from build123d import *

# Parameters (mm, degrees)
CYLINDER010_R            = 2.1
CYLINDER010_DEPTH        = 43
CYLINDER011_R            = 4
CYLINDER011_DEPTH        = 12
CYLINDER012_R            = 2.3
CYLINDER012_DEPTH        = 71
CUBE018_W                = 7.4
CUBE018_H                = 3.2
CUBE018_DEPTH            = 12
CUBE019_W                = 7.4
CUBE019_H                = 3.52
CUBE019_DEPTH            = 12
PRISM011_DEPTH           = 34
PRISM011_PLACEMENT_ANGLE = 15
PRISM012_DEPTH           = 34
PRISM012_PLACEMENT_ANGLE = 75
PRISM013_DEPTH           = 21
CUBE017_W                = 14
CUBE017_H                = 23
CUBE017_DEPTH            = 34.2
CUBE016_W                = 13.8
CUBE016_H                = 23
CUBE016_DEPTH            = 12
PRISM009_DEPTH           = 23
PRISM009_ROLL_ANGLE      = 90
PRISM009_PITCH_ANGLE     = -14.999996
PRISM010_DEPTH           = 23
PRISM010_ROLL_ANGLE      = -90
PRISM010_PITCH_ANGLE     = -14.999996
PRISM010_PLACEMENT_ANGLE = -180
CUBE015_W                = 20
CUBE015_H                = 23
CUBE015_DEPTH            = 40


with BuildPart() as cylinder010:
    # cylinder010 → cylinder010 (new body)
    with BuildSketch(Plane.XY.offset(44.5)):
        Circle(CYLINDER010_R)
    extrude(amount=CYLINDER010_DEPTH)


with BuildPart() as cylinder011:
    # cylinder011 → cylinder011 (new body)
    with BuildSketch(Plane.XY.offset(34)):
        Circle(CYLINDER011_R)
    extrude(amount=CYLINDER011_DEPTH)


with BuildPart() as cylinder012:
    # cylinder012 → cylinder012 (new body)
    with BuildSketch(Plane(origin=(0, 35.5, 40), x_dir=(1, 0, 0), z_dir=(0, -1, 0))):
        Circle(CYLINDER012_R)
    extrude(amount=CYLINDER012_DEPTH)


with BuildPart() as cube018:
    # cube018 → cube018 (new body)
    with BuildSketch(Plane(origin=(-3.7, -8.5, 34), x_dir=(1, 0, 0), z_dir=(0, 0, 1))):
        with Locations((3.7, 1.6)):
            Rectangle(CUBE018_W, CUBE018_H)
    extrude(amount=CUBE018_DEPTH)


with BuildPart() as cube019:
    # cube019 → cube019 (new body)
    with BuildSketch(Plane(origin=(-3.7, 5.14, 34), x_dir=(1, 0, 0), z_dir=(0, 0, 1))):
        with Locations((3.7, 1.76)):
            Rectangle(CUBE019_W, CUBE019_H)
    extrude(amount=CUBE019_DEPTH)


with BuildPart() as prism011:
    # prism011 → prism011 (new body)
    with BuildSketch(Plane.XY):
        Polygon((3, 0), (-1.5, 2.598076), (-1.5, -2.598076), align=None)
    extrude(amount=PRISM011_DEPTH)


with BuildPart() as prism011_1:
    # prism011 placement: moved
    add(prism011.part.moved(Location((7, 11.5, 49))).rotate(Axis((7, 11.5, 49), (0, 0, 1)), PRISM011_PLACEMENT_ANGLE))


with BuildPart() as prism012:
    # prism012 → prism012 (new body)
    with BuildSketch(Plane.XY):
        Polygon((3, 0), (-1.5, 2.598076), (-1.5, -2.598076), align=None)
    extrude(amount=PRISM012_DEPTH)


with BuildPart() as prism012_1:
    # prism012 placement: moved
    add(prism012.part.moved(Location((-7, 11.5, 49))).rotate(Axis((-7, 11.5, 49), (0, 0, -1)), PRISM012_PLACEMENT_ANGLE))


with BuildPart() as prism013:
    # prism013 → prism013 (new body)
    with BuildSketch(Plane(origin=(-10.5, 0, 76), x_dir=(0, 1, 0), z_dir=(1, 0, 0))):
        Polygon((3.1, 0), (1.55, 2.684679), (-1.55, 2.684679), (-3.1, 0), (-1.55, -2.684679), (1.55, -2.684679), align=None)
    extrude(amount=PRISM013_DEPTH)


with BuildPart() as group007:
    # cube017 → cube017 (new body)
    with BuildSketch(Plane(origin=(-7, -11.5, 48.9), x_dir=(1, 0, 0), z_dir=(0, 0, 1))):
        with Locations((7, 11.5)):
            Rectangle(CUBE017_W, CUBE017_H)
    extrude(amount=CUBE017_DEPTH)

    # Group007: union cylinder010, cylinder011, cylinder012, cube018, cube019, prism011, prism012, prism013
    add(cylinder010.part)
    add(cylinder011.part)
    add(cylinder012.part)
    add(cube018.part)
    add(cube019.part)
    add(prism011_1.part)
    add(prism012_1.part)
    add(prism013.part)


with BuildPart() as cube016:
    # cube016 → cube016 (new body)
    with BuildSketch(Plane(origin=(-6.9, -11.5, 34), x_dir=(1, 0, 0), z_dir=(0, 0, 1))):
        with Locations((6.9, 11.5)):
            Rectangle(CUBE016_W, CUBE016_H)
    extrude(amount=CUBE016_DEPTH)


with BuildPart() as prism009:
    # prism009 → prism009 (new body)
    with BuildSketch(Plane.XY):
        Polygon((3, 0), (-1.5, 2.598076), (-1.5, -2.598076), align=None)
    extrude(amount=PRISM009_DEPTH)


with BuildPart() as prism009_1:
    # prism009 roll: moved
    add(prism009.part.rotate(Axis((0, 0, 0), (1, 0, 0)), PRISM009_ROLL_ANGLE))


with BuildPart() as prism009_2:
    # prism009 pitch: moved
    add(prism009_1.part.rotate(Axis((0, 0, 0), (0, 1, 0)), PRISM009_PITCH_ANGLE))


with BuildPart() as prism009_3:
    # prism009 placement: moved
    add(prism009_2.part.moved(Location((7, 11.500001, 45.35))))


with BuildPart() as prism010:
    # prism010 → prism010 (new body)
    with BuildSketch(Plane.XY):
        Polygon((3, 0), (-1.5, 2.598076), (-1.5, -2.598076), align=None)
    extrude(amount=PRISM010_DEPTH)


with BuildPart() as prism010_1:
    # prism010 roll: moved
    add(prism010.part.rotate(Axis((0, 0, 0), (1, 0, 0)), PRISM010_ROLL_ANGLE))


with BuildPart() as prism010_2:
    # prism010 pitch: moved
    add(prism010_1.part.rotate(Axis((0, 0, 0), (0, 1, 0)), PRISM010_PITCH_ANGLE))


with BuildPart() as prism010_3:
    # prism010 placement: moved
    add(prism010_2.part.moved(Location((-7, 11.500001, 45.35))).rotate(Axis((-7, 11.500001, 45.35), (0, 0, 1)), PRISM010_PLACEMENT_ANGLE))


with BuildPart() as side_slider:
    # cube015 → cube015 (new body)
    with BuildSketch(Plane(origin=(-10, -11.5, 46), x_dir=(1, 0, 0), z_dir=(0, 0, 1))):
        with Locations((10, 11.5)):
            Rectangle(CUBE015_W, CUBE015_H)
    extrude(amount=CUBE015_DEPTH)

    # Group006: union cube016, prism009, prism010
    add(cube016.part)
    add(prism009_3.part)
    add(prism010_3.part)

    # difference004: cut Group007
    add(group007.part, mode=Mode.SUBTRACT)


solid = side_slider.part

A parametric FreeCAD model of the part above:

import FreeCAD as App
import Part
import Sketcher
from FreeCAD import Vector
Q = App.Units.Quantity


def add_polygon(sketch, points):
    """Adds a closed chain of lines whose ends are joined by coincident constraints."""
    first, n = sketch.GeometryCount, len(points)
    for a, b in zip(points, points[1:] + points[:1]):
        sketch.addGeometry(Part.LineSegment(App.Vector(*a, 0), App.Vector(*b, 0)), False)
    for i in range(n):
        sketch.addConstraint(Sketcher.Constraint("Coincident", first + i, 2, first + (i + 1) % n, 1))

doc = App.newDocument("Part")
params = doc.addObject("Spreadsheet::Sheet", "Params")
for row, (alias, value) in enumerate([
    ("sketch1_diameter", "4.2 mm"),
    ("pad1_length", "43 mm"),
    ("sketch2_diameter", "8 mm"),
    ("pad2_length", "12 mm"),
    ("sketch3_diameter", "4.6 mm"),
    ("pad3_length", "71 mm"),
    ("sketch4_width", "7.4 mm"),
    ("sketch4_height", "3.2 mm"),
    ("pad4_length", "12 mm"),
    ("sketch5_width", "7.4 mm"),
    ("sketch5_height", "3.52 mm"),
    ("pad5_length", "12 mm"),
    ("pad6_length", "34 mm"),
    ("pad7_length", "34 mm"),
    ("sketch8_width", "3.1 mm"),
    ("sketch8_length", "3.1 mm"),
    ("pad8_length", "21 mm"),
    ("sketch9_width", "14 mm"),
    ("sketch9_height", "23 mm"),
    ("pad9_length", "34.2 mm"),
    ("sketch10_height", "23 mm"),
    ("sketch10_width", "13.8 mm"),
    ("pad10_length", "12 mm"),
    ("pad11_length", "23 mm"),
    ("pad12_length", "23 mm"),
    ("sketch13_width", "20 mm"),
    ("sketch13_height", "23 mm"),
    ("pad13_length", "40 mm"),
], start=1):
    params.set(f"A{row}", alias)
    params.set(f"B{row}", "=" + value)
    params.setAlias(f"B{row}", alias)

body = doc.addObject("PartDesign::Body", "Body")

# Sketch on XY plane
sketch1 = doc.addObject("Sketcher::SketchObject", "Sketch")
body.addObject(sketch1)
sketch1.AttachmentSupport = (doc.XY_Plane, [""])
sketch1.MapMode = "FlatFace"
sketch1.AttachmentOffset = App.Placement(Vector(0, 0, 44.5), App.Rotation())
sketch1.addGeometry(Part.Circle(Vector(0, 0, 0), Vector(0, 0, 1), 2.1), False)
sketch1.addConstraint(Sketcher.Constraint("Coincident", 0, 3, -1, 1))
sketch1.addConstraint(Sketcher.Constraint("Diameter", 0, Q("4.2 mm")))
sketch1.setExpression("Constraints[1]", "Params.sketch1_diameter")
pad1 = doc.addObject("PartDesign::Pad", "Pad")
body.addObject(pad1)
pad1.Profile = sketch1
pad1.setExpression("Length", "Params.pad1_length")
body2 = doc.addObject("PartDesign::Body", "Body001")

# Sketch on XY plane
sketch2 = doc.addObject("Sketcher::SketchObject", "Sketch001")
body2.addObject(sketch2)
sketch2.AttachmentSupport = (doc.getObject("XY_Plane001"), [""])
sketch2.MapMode = "FlatFace"
sketch2.AttachmentOffset = App.Placement(Vector(0, 0, 34), App.Rotation())
sketch2.addGeometry(Part.Circle(Vector(0, 0, 0), Vector(0, 0, 1), 4), False)
sketch2.addConstraint(Sketcher.Constraint("Coincident", 0, 3, -1, 1))
sketch2.addConstraint(Sketcher.Constraint("Diameter", 0, Q("8 mm")))
sketch2.setExpression("Constraints[1]", "Params.sketch2_diameter")
pad2 = doc.addObject("PartDesign::Pad", "Pad001")
body2.addObject(pad2)
pad2.Profile = sketch2
pad2.setExpression("Length", "Params.pad2_length")
body3 = doc.addObject("PartDesign::Body", "Body002")

# Sketch on XZ plane
sketch3 = doc.addObject("Sketcher::SketchObject", "Sketch002")
body3.addObject(sketch3)
sketch3.AttachmentSupport = (doc.getObject("XZ_Plane002"), [""])
sketch3.MapMode = "FlatFace"
sketch3.AttachmentOffset = App.Placement(Vector(0, 0, -35.5), App.Rotation())
sketch3.addGeometry(Part.Circle(Vector(0, 40, 0), Vector(0, 0, 1), 2.3), False)
sketch3.addConstraint(Sketcher.Constraint("PointOnObject", 0, 3, -2))
sketch3.addConstraint(Sketcher.Constraint("Diameter", 0, Q("4.6 mm")))
sketch3.addConstraint(Sketcher.Constraint("DistanceY", -1, 1, 0, 3, Q("40 mm")))
sketch3.setExpression("Constraints[1]", "Params.sketch3_diameter")
pad3 = doc.addObject("PartDesign::Pad", "Pad002")
body3.addObject(pad3)
pad3.Profile = sketch3
pad3.setExpression("Length", "Params.pad3_length")
body4 = doc.addObject("PartDesign::Body", "Body003")

# Sketch on XY plane
sketch4 = doc.addObject("Sketcher::SketchObject", "Sketch003")
body4.addObject(sketch4)
sketch4.AttachmentSupport = (doc.getObject("XY_Plane003"), [""])
sketch4.MapMode = "FlatFace"
sketch4.AttachmentOffset = App.Placement(Vector(0, 0, 34), App.Rotation())
add_polygon(sketch4, [(-3.7, -5.3), (-3.7, -8.5), (3.7, -8.5), (3.7, -5.3)])  # lines 0-3
sketch4.addConstraint(Sketcher.Constraint("Vertical", 0))
sketch4.addConstraint(Sketcher.Constraint("Horizontal", 1))
sketch4.addConstraint(Sketcher.Constraint("Vertical", 2))
sketch4.addConstraint(Sketcher.Constraint("Horizontal", 3))
sketch4.addConstraint(Sketcher.Constraint("DistanceX", 1, 1, 1, 2, Q("7.4 mm")))
sketch4.addConstraint(Sketcher.Constraint("DistanceY", 0, 2, 0, 1, Q("3.2 mm")))
sketch4.addConstraint(Sketcher.Constraint("DistanceX", 0, 2, -1, 1, Q("3.7 mm")))
sketch4.addConstraint(Sketcher.Constraint("DistanceY", 0, 2, -1, 1, Q("8.5 mm")))
sketch4.setExpression("Constraints[8]", "Params.sketch4_width")
sketch4.setExpression("Constraints[9]", "Params.sketch4_height")
pad4 = doc.addObject("PartDesign::Pad", "Pad003")
body4.addObject(pad4)
pad4.Profile = sketch4
pad4.setExpression("Length", "Params.pad4_length")
body5 = doc.addObject("PartDesign::Body", "Body004")

# Sketch on XY plane
sketch5 = doc.addObject("Sketcher::SketchObject", "Sketch004")
body5.addObject(sketch5)
sketch5.AttachmentSupport = (doc.getObject("XY_Plane004"), [""])
sketch5.MapMode = "FlatFace"
sketch5.AttachmentOffset = App.Placement(Vector(0, 0, 34), App.Rotation())
add_polygon(sketch5, [(-3.7, 8.7), (-3.7, 5.1), (3.7, 5.1), (3.7, 8.7)])  # lines 0-3
sketch5.addConstraint(Sketcher.Constraint("Vertical", 0))
sketch5.addConstraint(Sketcher.Constraint("Horizontal", 1))
sketch5.addConstraint(Sketcher.Constraint("Vertical", 2))
sketch5.addConstraint(Sketcher.Constraint("Horizontal", 3))
sketch5.addConstraint(Sketcher.Constraint("DistanceX", 1, 1, 1, 2, Q("7.4 mm")))
sketch5.addConstraint(Sketcher.Constraint("DistanceY", 0, 2, 0, 1, Q("3.52 mm")))
sketch5.addConstraint(Sketcher.Constraint("DistanceX", 0, 2, -1, 1, Q("3.7 mm")))
sketch5.addConstraint(Sketcher.Constraint("DistanceY", -1, 1, 0, 2, Q("5.14 mm")))
sketch5.setExpression("Constraints[8]", "Params.sketch5_width")
sketch5.setExpression("Constraints[9]", "Params.sketch5_height")
pad5 = doc.addObject("PartDesign::Pad", "Pad004")
body5.addObject(pad5)
pad5.Profile = sketch5
pad5.setExpression("Length", "Params.pad5_length")
body6 = doc.addObject("PartDesign::Body", "Body005")

# Sketch on XY plane
sketch6 = doc.addObject("Sketcher::SketchObject", "Sketch005")
body6.addObject(sketch6)
sketch6.AttachmentSupport = (doc.getObject("XY_Plane005"), [""])
sketch6.MapMode = "FlatFace"
add_polygon(sketch6, [(3, 0), (-2, 3), (-2, -3)])  # lines 0-2
sketch6.addConstraint(Sketcher.Constraint("Vertical", 1))
sketch6.addConstraint(Sketcher.Constraint("PointOnObject", 2, 2, -1))
sketch6.addConstraint(Sketcher.Constraint("Equal", 0, 2))
sketch6.addConstraint(Sketcher.Constraint("Angle", 0, Q("150.000002 deg")))
sketch6.addConstraint(Sketcher.Constraint("DistanceX", -1, 1, 2, 2, Q("3 mm")))
sketch6.addConstraint(Sketcher.Constraint("DistanceX", 0, 2, -1, 1, Q("1.5 mm")))
pad6 = doc.addObject("PartDesign::Pad", "Pad005")
body6.addObject(pad6)
pad6.Profile = sketch6
pad6.setExpression("Length", "Params.pad6_length")
body7 = doc.addObject("PartDesign::Body", "Body006")
doc.recompute()

body6.Placement = App.Placement(Vector(7, 11.5, 49), App.Rotation(Vector(0, 0, 1), 15))
boolean = doc.addObject("PartDesign::Boolean", "Boolean")
body7.addObject(boolean)
boolean.Type = "Fuse"
boolean.addObjects([body6])
body8 = doc.addObject("PartDesign::Body", "Body007")

# Sketch on XY plane
sketch7 = doc.addObject("Sketcher::SketchObject", "Sketch006")
body8.addObject(sketch7)
sketch7.AttachmentSupport = (doc.getObject("XY_Plane007"), [""])
sketch7.MapMode = "FlatFace"
add_polygon(sketch7, [(3, 0), (-2, 3), (-2, -3)])  # lines 0-2
sketch7.addConstraint(Sketcher.Constraint("Vertical", 1))
sketch7.addConstraint(Sketcher.Constraint("PointOnObject", 2, 2, -1))
sketch7.addConstraint(Sketcher.Constraint("Equal", 0, 2))
sketch7.addConstraint(Sketcher.Constraint("Angle", 0, Q("150.000002 deg")))
sketch7.addConstraint(Sketcher.Constraint("DistanceX", -1, 1, 2, 2, Q("3 mm")))
sketch7.addConstraint(Sketcher.Constraint("DistanceX", 0, 2, -1, 1, Q("1.5 mm")))
pad7 = doc.addObject("PartDesign::Pad", "Pad006")
body8.addObject(pad7)
pad7.Profile = sketch7
pad7.setExpression("Length", "Params.pad7_length")
body9 = doc.addObject("PartDesign::Body", "Body008")
doc.recompute()

body8.Placement = App.Placement(Vector(-7, 11.5, 49), App.Rotation(Vector(0, 0, -1), 75))
boolean2 = doc.addObject("PartDesign::Boolean", "Boolean001")
body9.addObject(boolean2)
boolean2.Type = "Fuse"
boolean2.addObjects([body8])
body10 = doc.addObject("PartDesign::Body", "Body009")

# Sketch on YZ plane
sketch8 = doc.addObject("Sketcher::SketchObject", "Sketch007")
body10.addObject(sketch8)
sketch8.AttachmentSupport = (doc.getObject("YZ_Plane009"), [""])
sketch8.MapMode = "FlatFace"
sketch8.AttachmentOffset = App.Placement(Vector(0, 0, -10.5), App.Rotation())
add_polygon(sketch8, [(3.1, 76), (1.6, 78.7), (-1.6, 78.7), (-3.1, 76), (-1.6, 73.3), (1.6, 73.3)])  # lines 0-5
sketch8.addConstraint(Sketcher.Constraint("Horizontal", 1))
sketch8.addConstraint(Sketcher.Constraint("Horizontal", 4))
sketch8.addConstraint(Sketcher.Constraint("Symmetric", 2, 2, 5, 2, -2))
sketch8.addConstraint(Sketcher.Constraint("Parallel", 0, 3))
sketch8.addConstraint(Sketcher.Constraint("Parallel", 2, 5))
sketch8.addConstraint(Sketcher.Constraint("Vertical", 1, 2, 3, 2))
sketch8.addConstraint(Sketcher.Constraint("Vertical", 0, 2, 4, 2))
sketch8.addConstraint(Sketcher.Constraint("Angle", 0, Q("119.999998 deg")))
sketch8.addConstraint(Sketcher.Constraint("DistanceX", 1, 2, 1, 1, Q("3.1 mm")))
sketch8.addConstraint(Sketcher.Constraint("DistanceY", -1, 1, 2, 2, Q("76 mm")))
sketch8.addConstraint(Sketcher.Constraint("Distance", 0, Q("3.1 mm")))
sketch8.setExpression("Constraints[14]", "Params.sketch8_width")
sketch8.setExpression("Constraints[16]", "Params.sketch8_length")
pad8 = doc.addObject("PartDesign::Pad", "Pad007")
body10.addObject(pad8)
pad8.Profile = sketch8
pad8.setExpression("Length", "Params.pad8_length")
body11 = doc.addObject("PartDesign::Body", "Body010")

# Sketch on XY plane
sketch9 = doc.addObject("Sketcher::SketchObject", "Sketch008")
body11.addObject(sketch9)
sketch9.AttachmentSupport = (doc.getObject("XY_Plane010"), [""])
sketch9.MapMode = "FlatFace"
sketch9.AttachmentOffset = App.Placement(Vector(0, 0, 48.9), App.Rotation())
add_polygon(sketch9, [(-7, 12), (-7, -12), (7, -12), (7, 12)])  # lines 0-3
sketch9.addConstraint(Sketcher.Constraint("Vertical", 0))
sketch9.addConstraint(Sketcher.Constraint("Horizontal", 1))
sketch9.addConstraint(Sketcher.Constraint("Vertical", 2))
sketch9.addConstraint(Sketcher.Constraint("Horizontal", 3))
sketch9.addConstraint(Sketcher.Constraint("Symmetric", 0, 2, 2, 2, -1, 1))
sketch9.addConstraint(Sketcher.Constraint("DistanceX", 1, 1, 1, 2, Q("14 mm")))
sketch9.addConstraint(Sketcher.Constraint("DistanceY", 0, 2, 0, 1, Q("23 mm")))
sketch9.setExpression("Constraints[9]", "Params.sketch9_width")
sketch9.setExpression("Constraints[10]", "Params.sketch9_height")
pad9 = doc.addObject("PartDesign::Pad", "Pad008")
body11.addObject(pad9)
pad9.Profile = sketch9
pad9.setExpression("Length", "Params.pad9_length")
doc.recompute()

boolean3 = doc.addObject("PartDesign::Boolean", "Boolean002")
body11.addObject(boolean3)
boolean3.Type = "Fuse"
boolean3.addObjects([body])
doc.recompute()

boolean4 = doc.addObject("PartDesign::Boolean", "Boolean003")
body11.addObject(boolean4)
boolean4.Type = "Fuse"
boolean4.addObjects([body2])
doc.recompute()

boolean5 = doc.addObject("PartDesign::Boolean", "Boolean004")
body11.addObject(boolean5)
boolean5.Type = "Fuse"
boolean5.addObjects([body3])
doc.recompute()

boolean6 = doc.addObject("PartDesign::Boolean", "Boolean005")
body11.addObject(boolean6)
boolean6.Type = "Fuse"
boolean6.addObjects([body4])
doc.recompute()

boolean7 = doc.addObject("PartDesign::Boolean", "Boolean006")
body11.addObject(boolean7)
boolean7.Type = "Fuse"
boolean7.addObjects([body5])
doc.recompute()

boolean8 = doc.addObject("PartDesign::Boolean", "Boolean007")
body11.addObject(boolean8)
boolean8.Type = "Fuse"
boolean8.addObjects([body7])
doc.recompute()

boolean9 = doc.addObject("PartDesign::Boolean", "Boolean008")
body11.addObject(boolean9)
boolean9.Type = "Fuse"
boolean9.addObjects([body9])
doc.recompute()

boolean10 = doc.addObject("PartDesign::Boolean", "Boolean009")
body11.addObject(boolean10)
boolean10.Type = "Fuse"
boolean10.addObjects([body10])
body12 = doc.addObject("PartDesign::Body", "Body011")

# Sketch on XY plane
sketch10 = doc.addObject("Sketcher::SketchObject", "Sketch009")
body12.addObject(sketch10)
sketch10.AttachmentSupport = (doc.getObject("XY_Plane011"), [""])
sketch10.MapMode = "FlatFace"
sketch10.AttachmentOffset = App.Placement(Vector(0, 0, 34), App.Rotation())
add_polygon(sketch10, [(-7, 12), (-7, -12), (7, -12), (7, 12)])  # lines 0-3
sketch10.addConstraint(Sketcher.Constraint("Vertical", 0))
sketch10.addConstraint(Sketcher.Constraint("Horizontal", 1))
sketch10.addConstraint(Sketcher.Constraint("Vertical", 2))
sketch10.addConstraint(Sketcher.Constraint("Horizontal", 3))
sketch10.addConstraint(Sketcher.Constraint("Symmetric", 0, 2, 2, 2, -1, 1))
sketch10.addConstraint(Sketcher.Constraint("DistanceY", 0, 2, 0, 1, Q("23 mm")))
sketch10.addConstraint(Sketcher.Constraint("DistanceX", 1, 1, 1, 2, Q("13.8 mm")))
sketch10.setExpression("Constraints[9]", "Params.sketch10_height")
sketch10.setExpression("Constraints[10]", "Params.sketch10_width")
pad10 = doc.addObject("PartDesign::Pad", "Pad009")
body12.addObject(pad10)
pad10.Profile = sketch10
pad10.setExpression("Length", "Params.pad10_length")
body13 = doc.addObject("PartDesign::Body", "Body012")

# Sketch on XY plane
sketch11 = doc.addObject("Sketcher::SketchObject", "Sketch010")
body13.addObject(sketch11)
sketch11.AttachmentSupport = (doc.getObject("XY_Plane012"), [""])
sketch11.MapMode = "FlatFace"
add_polygon(sketch11, [(3, 0), (-2, 3), (-2, -3)])  # lines 0-2
sketch11.addConstraint(Sketcher.Constraint("Vertical", 1))
sketch11.addConstraint(Sketcher.Constraint("PointOnObject", 2, 2, -1))
sketch11.addConstraint(Sketcher.Constraint("Equal", 0, 2))
sketch11.addConstraint(Sketcher.Constraint("Angle", 0, Q("150.000002 deg")))
sketch11.addConstraint(Sketcher.Constraint("DistanceX", -1, 1, 2, 2, Q("3 mm")))
sketch11.addConstraint(Sketcher.Constraint("DistanceX", 0, 2, -1, 1, Q("1.5 mm")))
pad11 = doc.addObject("PartDesign::Pad", "Pad010")
body13.addObject(pad11)
pad11.Profile = sketch11
pad11.setExpression("Length", "Params.pad11_length")
body14 = doc.addObject("PartDesign::Body", "Body013")
doc.recompute()

body13.Placement = App.Placement(Vector(0, 0, 0), App.Rotation(Vector(1, 0, 0), 90))
boolean11 = doc.addObject("PartDesign::Boolean", "Boolean010")
body14.addObject(boolean11)
boolean11.Type = "Fuse"
boolean11.addObjects([body13])
body15 = doc.addObject("PartDesign::Body", "Body014")
doc.recompute()

body14.Placement = App.Placement(Vector(0, 0, 0), App.Rotation(Vector(0, 1, 0), 345.000004))
boolean12 = doc.addObject("PartDesign::Boolean", "Boolean011")
body15.addObject(boolean12)
boolean12.Type = "Fuse"
boolean12.addObjects([body14])
body16 = doc.addObject("PartDesign::Body", "Body015")
doc.recompute()

body15.Placement = App.Placement(Vector(7, 11.500001, 45.35), App.Rotation(Vector(0, 0, 1), 0))
boolean13 = doc.addObject("PartDesign::Boolean", "Boolean012")
body16.addObject(boolean13)
boolean13.Type = "Fuse"
boolean13.addObjects([body15])
body17 = doc.addObject("PartDesign::Body", "Body016")

# Sketch on XY plane
sketch12 = doc.addObject("Sketcher::SketchObject", "Sketch011")
body17.addObject(sketch12)
sketch12.AttachmentSupport = (doc.getObject("XY_Plane016"), [""])
sketch12.MapMode = "FlatFace"
add_polygon(sketch12, [(3, 0), (-2, 3), (-2, -3)])  # lines 0-2
sketch12.addConstraint(Sketcher.Constraint("Vertical", 1))
sketch12.addConstraint(Sketcher.Constraint("PointOnObject", 2, 2, -1))
sketch12.addConstraint(Sketcher.Constraint("Equal", 0, 2))
sketch12.addConstraint(Sketcher.Constraint("Angle", 0, Q("150.000002 deg")))
sketch12.addConstraint(Sketcher.Constraint("DistanceX", -1, 1, 2, 2, Q("3 mm")))
sketch12.addConstraint(Sketcher.Constraint("DistanceX", 0, 2, -1, 1, Q("1.5 mm")))
pad12 = doc.addObject("PartDesign::Pad", "Pad011")
body17.addObject(pad12)
pad12.Profile = sketch12
pad12.setExpression("Length", "Params.pad12_length")
body18 = doc.addObject("PartDesign::Body", "Body017")
doc.recompute()

body17.Placement = App.Placement(Vector(0, 0, 0), App.Rotation(Vector(1, 0, 0), 270))
boolean14 = doc.addObject("PartDesign::Boolean", "Boolean013")
body18.addObject(boolean14)
boolean14.Type = "Fuse"
boolean14.addObjects([body17])
body19 = doc.addObject("PartDesign::Body", "Body018")
doc.recompute()

body18.Placement = App.Placement(Vector(0, 0, 0), App.Rotation(Vector(0, 1, 0), 345.000004))
boolean15 = doc.addObject("PartDesign::Boolean", "Boolean014")
body19.addObject(boolean15)
boolean15.Type = "Fuse"
boolean15.addObjects([body18])
body20 = doc.addObject("PartDesign::Body", "Body019")
doc.recompute()

body19.Placement = App.Placement(Vector(-7, 11.500001, 45.35), App.Rotation(Vector(0, 0, 1), 180))
boolean16 = doc.addObject("PartDesign::Boolean", "Boolean015")
body20.addObject(boolean16)
boolean16.Type = "Fuse"
boolean16.addObjects([body19])
body21 = doc.addObject("PartDesign::Body", "Body020")

# Sketch on XY plane
sketch13 = doc.addObject("Sketcher::SketchObject", "Sketch012")
body21.addObject(sketch13)
sketch13.AttachmentSupport = (doc.getObject("XY_Plane020"), [""])
sketch13.MapMode = "FlatFace"
sketch13.AttachmentOffset = App.Placement(Vector(0, 0, 46), App.Rotation())
add_polygon(sketch13, [(-10, 12), (-10, -12), (10, -12), (10, 12)])  # lines 0-3
sketch13.addConstraint(Sketcher.Constraint("Vertical", 0))
sketch13.addConstraint(Sketcher.Constraint("Horizontal", 1))
sketch13.addConstraint(Sketcher.Constraint("Vertical", 2))
sketch13.addConstraint(Sketcher.Constraint("Horizontal", 3))
sketch13.addConstraint(Sketcher.Constraint("Symmetric", 0, 2, 2, 2, -1, 1))
sketch13.addConstraint(Sketcher.Constraint("DistanceX", 1, 1, 1, 2, Q("20 mm")))
sketch13.addConstraint(Sketcher.Constraint("DistanceY", 0, 2, 0, 1, Q("23 mm")))
sketch13.setExpression("Constraints[9]", "Params.sketch13_width")
sketch13.setExpression("Constraints[10]", "Params.sketch13_height")
pad13 = doc.addObject("PartDesign::Pad", "Pad012")
body21.addObject(pad13)
pad13.Profile = sketch13
pad13.setExpression("Length", "Params.pad13_length")
doc.recompute()

boolean17 = doc.addObject("PartDesign::Boolean", "Boolean016")
body21.addObject(boolean17)
boolean17.Type = "Fuse"
boolean17.addObjects([body12])
doc.recompute()

boolean18 = doc.addObject("PartDesign::Boolean", "Boolean017")
body21.addObject(boolean18)
boolean18.Type = "Fuse"
boolean18.addObjects([body16])
doc.recompute()

boolean19 = doc.addObject("PartDesign::Boolean", "Boolean018")
body21.addObject(boolean19)
boolean19.Type = "Fuse"
boolean19.addObjects([body20])
doc.recompute()

boolean20 = doc.addObject("PartDesign::Boolean", "Boolean019")
body21.addObject(boolean20)
boolean20.Type = "Cut"
boolean20.addObjects([body11])

doc.recompute()
